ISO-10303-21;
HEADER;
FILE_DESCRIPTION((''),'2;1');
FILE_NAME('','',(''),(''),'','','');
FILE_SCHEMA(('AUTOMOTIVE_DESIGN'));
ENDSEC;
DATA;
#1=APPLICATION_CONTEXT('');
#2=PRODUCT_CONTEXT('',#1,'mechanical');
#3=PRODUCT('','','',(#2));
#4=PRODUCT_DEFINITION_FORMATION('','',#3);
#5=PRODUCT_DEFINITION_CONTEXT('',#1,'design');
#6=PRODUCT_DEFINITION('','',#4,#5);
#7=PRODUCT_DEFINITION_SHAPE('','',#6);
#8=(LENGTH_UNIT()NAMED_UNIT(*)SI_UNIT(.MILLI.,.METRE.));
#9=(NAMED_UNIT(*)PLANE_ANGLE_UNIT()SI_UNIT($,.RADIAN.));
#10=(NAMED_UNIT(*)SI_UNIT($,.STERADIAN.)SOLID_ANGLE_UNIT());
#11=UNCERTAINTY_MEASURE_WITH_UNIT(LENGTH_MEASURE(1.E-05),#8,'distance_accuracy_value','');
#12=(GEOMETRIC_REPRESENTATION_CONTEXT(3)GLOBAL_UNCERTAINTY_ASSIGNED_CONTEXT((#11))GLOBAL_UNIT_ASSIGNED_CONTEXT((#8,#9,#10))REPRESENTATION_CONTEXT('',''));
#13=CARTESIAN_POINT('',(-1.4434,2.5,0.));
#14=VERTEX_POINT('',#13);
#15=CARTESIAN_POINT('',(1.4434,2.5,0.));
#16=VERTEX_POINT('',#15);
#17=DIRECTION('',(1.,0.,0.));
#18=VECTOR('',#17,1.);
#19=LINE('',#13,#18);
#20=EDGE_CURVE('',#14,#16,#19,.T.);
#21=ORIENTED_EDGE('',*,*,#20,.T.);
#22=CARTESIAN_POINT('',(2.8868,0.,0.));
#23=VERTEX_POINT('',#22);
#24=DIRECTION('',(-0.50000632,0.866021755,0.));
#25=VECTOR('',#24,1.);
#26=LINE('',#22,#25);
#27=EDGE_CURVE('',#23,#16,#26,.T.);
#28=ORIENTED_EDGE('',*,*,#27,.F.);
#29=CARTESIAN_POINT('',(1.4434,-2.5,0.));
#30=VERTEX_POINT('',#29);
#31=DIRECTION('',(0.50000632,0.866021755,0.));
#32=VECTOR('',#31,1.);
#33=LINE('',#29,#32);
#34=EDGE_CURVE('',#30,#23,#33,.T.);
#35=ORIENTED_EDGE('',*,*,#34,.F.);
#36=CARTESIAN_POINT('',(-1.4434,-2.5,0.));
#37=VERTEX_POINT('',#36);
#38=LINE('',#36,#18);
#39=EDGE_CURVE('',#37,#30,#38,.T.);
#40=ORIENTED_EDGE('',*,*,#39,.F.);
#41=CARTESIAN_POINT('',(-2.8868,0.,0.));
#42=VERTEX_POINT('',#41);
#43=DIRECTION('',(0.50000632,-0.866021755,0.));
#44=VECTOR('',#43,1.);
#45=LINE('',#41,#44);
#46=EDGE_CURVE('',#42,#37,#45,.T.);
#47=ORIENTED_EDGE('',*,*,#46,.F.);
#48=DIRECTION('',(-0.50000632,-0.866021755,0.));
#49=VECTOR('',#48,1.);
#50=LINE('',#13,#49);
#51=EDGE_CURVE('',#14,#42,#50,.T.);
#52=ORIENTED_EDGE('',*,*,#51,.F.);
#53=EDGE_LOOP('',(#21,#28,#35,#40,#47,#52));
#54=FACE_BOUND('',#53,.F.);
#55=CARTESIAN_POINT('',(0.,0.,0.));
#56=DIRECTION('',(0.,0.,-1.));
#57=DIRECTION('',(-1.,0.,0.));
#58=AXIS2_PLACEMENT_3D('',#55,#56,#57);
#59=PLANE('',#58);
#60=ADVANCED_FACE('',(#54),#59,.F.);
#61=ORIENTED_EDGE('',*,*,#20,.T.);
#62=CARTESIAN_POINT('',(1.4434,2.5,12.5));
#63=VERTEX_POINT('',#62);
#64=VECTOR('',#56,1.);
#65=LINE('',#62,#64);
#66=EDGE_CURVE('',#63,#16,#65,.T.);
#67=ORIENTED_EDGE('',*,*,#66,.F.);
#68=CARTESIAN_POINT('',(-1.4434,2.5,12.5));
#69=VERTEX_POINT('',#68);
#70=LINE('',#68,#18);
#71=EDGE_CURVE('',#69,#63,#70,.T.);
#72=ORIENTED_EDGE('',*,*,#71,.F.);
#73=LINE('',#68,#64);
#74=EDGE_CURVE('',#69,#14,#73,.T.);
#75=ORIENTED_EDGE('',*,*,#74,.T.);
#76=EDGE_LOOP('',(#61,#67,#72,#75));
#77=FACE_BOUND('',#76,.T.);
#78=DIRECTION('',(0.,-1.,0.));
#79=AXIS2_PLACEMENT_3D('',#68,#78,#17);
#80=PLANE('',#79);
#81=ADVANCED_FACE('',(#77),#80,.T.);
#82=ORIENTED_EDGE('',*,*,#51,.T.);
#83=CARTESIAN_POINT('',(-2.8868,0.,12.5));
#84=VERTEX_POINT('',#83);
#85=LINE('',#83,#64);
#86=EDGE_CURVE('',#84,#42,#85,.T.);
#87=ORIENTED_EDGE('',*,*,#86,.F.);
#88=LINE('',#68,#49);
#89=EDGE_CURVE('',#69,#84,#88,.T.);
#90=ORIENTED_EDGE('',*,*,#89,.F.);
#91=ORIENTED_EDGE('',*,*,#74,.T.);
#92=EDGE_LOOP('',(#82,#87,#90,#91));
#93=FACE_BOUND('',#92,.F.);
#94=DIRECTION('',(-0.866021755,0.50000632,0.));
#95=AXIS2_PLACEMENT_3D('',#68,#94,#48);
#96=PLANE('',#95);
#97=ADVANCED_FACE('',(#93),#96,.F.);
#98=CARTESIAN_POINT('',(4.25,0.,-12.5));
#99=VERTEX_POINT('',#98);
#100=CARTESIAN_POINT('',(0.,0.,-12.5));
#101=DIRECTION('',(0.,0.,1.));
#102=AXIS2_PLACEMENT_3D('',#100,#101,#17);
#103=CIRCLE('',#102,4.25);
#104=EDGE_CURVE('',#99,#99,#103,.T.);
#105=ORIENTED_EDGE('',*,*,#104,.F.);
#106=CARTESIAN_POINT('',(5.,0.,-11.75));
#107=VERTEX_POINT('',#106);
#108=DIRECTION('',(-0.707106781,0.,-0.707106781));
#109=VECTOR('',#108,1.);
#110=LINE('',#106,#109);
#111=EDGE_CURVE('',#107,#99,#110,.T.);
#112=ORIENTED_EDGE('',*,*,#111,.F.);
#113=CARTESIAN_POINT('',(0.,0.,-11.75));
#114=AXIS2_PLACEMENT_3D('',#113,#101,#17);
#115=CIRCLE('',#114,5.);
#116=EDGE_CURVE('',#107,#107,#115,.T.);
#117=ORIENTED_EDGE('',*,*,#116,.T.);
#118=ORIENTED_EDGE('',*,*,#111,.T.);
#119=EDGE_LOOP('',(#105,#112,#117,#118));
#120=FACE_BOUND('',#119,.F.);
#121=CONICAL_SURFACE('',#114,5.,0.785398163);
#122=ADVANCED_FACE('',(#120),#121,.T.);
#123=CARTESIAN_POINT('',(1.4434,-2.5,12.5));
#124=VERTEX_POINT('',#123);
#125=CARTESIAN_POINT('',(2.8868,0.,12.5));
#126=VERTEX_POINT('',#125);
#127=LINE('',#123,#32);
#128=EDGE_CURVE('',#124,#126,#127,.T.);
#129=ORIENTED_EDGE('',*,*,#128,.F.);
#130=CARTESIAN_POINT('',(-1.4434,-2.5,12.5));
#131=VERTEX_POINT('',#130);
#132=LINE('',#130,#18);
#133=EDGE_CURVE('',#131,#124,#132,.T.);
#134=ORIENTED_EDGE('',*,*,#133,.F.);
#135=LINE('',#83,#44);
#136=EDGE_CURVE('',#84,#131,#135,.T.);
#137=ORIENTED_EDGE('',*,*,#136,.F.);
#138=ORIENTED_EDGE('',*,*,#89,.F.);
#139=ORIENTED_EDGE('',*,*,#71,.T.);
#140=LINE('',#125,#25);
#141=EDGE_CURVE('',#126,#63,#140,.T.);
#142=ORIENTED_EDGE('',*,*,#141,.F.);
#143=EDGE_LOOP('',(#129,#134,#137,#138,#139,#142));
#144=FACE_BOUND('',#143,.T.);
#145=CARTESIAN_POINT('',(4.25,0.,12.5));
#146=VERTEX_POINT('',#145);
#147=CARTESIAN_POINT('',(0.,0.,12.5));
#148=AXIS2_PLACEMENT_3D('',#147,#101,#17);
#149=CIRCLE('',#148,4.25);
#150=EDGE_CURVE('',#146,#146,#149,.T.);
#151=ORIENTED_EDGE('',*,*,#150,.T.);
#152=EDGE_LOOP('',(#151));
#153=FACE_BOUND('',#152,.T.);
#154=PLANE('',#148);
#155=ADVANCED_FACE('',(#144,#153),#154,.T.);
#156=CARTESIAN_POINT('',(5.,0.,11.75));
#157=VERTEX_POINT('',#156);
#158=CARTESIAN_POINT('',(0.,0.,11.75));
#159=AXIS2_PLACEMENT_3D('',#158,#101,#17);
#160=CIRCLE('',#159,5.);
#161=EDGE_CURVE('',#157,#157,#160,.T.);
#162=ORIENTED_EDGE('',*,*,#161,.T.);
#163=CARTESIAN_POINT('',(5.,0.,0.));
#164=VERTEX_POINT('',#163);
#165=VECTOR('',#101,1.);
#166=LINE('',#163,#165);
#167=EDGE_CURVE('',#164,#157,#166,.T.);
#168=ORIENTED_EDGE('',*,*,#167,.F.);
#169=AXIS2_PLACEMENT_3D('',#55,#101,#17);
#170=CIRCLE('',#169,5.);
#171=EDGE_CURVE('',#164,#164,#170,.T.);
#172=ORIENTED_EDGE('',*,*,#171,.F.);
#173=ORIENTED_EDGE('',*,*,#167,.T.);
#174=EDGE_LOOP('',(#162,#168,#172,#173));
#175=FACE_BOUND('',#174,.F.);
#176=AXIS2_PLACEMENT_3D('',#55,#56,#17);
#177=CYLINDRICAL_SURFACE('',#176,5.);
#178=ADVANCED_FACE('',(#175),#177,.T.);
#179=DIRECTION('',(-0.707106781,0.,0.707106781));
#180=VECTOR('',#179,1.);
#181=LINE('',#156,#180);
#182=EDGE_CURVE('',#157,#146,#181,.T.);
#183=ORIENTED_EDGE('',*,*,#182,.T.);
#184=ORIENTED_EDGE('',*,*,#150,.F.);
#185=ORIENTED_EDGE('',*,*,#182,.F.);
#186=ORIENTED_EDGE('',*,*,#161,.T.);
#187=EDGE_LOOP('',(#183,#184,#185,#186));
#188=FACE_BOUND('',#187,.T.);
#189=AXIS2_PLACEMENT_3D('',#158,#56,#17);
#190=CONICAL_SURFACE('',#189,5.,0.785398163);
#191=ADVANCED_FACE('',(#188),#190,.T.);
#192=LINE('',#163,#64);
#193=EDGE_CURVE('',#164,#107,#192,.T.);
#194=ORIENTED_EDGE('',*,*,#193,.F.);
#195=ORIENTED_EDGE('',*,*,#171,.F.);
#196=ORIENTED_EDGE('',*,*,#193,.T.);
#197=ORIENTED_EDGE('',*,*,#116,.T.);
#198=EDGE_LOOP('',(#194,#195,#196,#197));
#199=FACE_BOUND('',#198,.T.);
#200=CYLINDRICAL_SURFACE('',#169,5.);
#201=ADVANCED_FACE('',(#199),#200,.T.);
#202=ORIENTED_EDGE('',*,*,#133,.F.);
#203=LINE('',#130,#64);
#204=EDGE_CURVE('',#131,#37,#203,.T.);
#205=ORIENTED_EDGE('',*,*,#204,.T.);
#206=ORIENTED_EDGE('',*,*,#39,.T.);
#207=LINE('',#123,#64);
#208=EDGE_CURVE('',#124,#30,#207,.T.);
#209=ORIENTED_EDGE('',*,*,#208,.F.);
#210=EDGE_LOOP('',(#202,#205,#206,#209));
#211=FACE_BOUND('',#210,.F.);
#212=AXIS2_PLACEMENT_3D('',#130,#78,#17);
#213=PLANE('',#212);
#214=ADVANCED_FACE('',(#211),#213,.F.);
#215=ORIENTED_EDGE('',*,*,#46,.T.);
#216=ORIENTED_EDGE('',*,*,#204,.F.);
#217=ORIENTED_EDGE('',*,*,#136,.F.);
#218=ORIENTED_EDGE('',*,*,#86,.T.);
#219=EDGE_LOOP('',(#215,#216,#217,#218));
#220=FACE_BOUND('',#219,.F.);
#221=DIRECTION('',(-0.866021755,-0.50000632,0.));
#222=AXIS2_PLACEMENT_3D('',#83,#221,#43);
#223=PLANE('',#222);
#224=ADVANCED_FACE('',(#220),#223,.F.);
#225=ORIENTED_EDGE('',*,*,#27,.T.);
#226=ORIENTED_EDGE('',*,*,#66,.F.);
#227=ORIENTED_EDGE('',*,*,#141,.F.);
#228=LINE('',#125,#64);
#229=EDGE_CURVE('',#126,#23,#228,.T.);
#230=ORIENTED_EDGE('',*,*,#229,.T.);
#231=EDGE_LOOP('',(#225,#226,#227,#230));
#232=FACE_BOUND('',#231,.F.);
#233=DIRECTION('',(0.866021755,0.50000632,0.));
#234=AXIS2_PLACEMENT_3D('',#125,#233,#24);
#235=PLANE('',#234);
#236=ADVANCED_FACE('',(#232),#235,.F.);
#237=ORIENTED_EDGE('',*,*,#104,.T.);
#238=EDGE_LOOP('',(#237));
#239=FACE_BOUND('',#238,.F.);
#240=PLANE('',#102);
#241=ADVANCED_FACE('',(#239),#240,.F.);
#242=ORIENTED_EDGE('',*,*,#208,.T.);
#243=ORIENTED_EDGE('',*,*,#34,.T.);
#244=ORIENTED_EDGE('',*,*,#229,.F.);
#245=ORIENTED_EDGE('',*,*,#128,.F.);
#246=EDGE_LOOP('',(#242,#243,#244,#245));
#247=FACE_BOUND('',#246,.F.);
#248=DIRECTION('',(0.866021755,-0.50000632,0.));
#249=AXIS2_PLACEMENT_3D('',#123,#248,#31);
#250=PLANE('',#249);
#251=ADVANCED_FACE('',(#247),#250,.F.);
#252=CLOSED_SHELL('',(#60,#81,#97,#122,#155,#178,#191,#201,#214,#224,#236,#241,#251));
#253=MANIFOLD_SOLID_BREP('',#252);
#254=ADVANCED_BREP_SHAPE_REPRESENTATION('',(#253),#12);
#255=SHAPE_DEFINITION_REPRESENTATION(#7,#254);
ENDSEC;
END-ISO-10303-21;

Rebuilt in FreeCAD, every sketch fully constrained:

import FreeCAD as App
import Part
import Sketcher
from FreeCAD import Vector
Q = App.Units.Quantity


def edges_at(feature, points):
    """Names of the edges that pass closest to the given points."""
    edges = feature.Shape.Edges
    near = lambda p: min(range(len(edges)), key=lambda i: edges[i].distToShape(Part.Vertex(*p))[0])
    return sorted({f"Edge{near(p) + 1}" for p in points})

doc = App.newDocument("Part")
body = doc.addObject("PartDesign::Body", "Body")

# Sketch on XY plane
sketch1 = body.newObject("Sketcher::SketchObject", "Sketch")
sketch1.AttachmentSupport = (doc.getObject("XY_Plane"), [""])
sketch1.MapMode = "FlatFace"
sketch1.addGeometry(Part.Circle(Vector(0, 0, 0), Vector(0, 0, 1), 5), False)
sketch1.addConstraint([
    Sketcher.Constraint("Coincident", 0, 3, -1, 1),
    Sketcher.Constraint("Diameter", 0, Q("10 mm")),
])
pad1 = body.newObject("PartDesign::Pad", "Pad")
pad1.Profile = sketch1
pad1.Length = 25
pad1.Midplane = True
doc.recompute()

chamfer = body.newObject("PartDesign::Chamfer", "Chamfer")
chamfer.Base = (pad1, edges_at(pad1, [(-5, 0, -12.5), (-5, 0, 12.5)]))
chamfer.Size = 0.75

# Sketch on XY plane
sketch2 = body.newObject("Sketcher::SketchObject", "Sketch001")
sketch2.AttachmentSupport = (doc.getObject("XY_Plane"), [""])
sketch2.MapMode = "FlatFace"
sketch2.AttachmentOffset = App.Placement(Vector(0, 0, 12.5), App.Rotation())
sketch2.addGeometry([
    Part.LineSegment(Vector(1.4, 2.5, 0), Vector(-1.4, 2.5, 0)),  # 0
    Part.LineSegment(Vector(-1.4, 2.5, 0), Vector(-2.9, 0, 0)),  # 1
    Part.LineSegment(Vector(-2.9, 0, 0), Vector(-1.4, -2.5, 0)),  # 2
    Part.LineSegment(Vector(-1.4, -2.5, 0), Vector(1.4, -2.5, 0)),  # 3
    Part.LineSegment(Vector(1.4, -2.5, 0), Vector(2.9, 0, 0)),  # 4
    Part.LineSegment(Vector(2.9, 0, 0), Vector(1.4, 2.5, 0)),  # 5
], False)
sketch2.addConstraint([
    Sketcher.Constraint("Coincident", 0, 2, 1, 1),
    Sketcher.Constraint("Coincident", 1, 2, 2, 1),
    Sketcher.Constraint("Coincident", 2, 2, 3, 1),
    Sketcher.Constraint("Coincident", 3, 2, 4, 1),
    Sketcher.Constraint("Coincident", 4, 2, 5, 1),
    Sketcher.Constraint("Coincident", 5, 2, 0, 1),
    Sketcher.Constraint("Horizontal", 0),
    Sketcher.Constraint("Horizontal", 3),
    Sketcher.Constraint("Symmetric", 0, 2, 3, 2, -1, 1),
    Sketcher.Constraint("Symmetric", 1, 2, 4, 2, -1, 1),
    Sketcher.Constraint("PointOnObject", 1, 2, -1),
    Sketcher.Constraint("Parallel", 2, 5),
    Sketcher.Constraint("Vertical", 0, 2, 2, 2),
    Sketcher.Constraint("Angle", 1, Q("-120.0004 deg")),
    Sketcher.Constraint("DistanceY", 2, 2, 0, 2, Q("5 mm")),
    Sketcher.Constraint("DistanceX", 0, 2, 0, 1, Q("2.8868 mm")),
])
pocket1 = body.newObject("PartDesign::Pocket", "Pocket")
pocket1.Profile = sketch2
pocket1.Length = 12.5

doc.recompute()
